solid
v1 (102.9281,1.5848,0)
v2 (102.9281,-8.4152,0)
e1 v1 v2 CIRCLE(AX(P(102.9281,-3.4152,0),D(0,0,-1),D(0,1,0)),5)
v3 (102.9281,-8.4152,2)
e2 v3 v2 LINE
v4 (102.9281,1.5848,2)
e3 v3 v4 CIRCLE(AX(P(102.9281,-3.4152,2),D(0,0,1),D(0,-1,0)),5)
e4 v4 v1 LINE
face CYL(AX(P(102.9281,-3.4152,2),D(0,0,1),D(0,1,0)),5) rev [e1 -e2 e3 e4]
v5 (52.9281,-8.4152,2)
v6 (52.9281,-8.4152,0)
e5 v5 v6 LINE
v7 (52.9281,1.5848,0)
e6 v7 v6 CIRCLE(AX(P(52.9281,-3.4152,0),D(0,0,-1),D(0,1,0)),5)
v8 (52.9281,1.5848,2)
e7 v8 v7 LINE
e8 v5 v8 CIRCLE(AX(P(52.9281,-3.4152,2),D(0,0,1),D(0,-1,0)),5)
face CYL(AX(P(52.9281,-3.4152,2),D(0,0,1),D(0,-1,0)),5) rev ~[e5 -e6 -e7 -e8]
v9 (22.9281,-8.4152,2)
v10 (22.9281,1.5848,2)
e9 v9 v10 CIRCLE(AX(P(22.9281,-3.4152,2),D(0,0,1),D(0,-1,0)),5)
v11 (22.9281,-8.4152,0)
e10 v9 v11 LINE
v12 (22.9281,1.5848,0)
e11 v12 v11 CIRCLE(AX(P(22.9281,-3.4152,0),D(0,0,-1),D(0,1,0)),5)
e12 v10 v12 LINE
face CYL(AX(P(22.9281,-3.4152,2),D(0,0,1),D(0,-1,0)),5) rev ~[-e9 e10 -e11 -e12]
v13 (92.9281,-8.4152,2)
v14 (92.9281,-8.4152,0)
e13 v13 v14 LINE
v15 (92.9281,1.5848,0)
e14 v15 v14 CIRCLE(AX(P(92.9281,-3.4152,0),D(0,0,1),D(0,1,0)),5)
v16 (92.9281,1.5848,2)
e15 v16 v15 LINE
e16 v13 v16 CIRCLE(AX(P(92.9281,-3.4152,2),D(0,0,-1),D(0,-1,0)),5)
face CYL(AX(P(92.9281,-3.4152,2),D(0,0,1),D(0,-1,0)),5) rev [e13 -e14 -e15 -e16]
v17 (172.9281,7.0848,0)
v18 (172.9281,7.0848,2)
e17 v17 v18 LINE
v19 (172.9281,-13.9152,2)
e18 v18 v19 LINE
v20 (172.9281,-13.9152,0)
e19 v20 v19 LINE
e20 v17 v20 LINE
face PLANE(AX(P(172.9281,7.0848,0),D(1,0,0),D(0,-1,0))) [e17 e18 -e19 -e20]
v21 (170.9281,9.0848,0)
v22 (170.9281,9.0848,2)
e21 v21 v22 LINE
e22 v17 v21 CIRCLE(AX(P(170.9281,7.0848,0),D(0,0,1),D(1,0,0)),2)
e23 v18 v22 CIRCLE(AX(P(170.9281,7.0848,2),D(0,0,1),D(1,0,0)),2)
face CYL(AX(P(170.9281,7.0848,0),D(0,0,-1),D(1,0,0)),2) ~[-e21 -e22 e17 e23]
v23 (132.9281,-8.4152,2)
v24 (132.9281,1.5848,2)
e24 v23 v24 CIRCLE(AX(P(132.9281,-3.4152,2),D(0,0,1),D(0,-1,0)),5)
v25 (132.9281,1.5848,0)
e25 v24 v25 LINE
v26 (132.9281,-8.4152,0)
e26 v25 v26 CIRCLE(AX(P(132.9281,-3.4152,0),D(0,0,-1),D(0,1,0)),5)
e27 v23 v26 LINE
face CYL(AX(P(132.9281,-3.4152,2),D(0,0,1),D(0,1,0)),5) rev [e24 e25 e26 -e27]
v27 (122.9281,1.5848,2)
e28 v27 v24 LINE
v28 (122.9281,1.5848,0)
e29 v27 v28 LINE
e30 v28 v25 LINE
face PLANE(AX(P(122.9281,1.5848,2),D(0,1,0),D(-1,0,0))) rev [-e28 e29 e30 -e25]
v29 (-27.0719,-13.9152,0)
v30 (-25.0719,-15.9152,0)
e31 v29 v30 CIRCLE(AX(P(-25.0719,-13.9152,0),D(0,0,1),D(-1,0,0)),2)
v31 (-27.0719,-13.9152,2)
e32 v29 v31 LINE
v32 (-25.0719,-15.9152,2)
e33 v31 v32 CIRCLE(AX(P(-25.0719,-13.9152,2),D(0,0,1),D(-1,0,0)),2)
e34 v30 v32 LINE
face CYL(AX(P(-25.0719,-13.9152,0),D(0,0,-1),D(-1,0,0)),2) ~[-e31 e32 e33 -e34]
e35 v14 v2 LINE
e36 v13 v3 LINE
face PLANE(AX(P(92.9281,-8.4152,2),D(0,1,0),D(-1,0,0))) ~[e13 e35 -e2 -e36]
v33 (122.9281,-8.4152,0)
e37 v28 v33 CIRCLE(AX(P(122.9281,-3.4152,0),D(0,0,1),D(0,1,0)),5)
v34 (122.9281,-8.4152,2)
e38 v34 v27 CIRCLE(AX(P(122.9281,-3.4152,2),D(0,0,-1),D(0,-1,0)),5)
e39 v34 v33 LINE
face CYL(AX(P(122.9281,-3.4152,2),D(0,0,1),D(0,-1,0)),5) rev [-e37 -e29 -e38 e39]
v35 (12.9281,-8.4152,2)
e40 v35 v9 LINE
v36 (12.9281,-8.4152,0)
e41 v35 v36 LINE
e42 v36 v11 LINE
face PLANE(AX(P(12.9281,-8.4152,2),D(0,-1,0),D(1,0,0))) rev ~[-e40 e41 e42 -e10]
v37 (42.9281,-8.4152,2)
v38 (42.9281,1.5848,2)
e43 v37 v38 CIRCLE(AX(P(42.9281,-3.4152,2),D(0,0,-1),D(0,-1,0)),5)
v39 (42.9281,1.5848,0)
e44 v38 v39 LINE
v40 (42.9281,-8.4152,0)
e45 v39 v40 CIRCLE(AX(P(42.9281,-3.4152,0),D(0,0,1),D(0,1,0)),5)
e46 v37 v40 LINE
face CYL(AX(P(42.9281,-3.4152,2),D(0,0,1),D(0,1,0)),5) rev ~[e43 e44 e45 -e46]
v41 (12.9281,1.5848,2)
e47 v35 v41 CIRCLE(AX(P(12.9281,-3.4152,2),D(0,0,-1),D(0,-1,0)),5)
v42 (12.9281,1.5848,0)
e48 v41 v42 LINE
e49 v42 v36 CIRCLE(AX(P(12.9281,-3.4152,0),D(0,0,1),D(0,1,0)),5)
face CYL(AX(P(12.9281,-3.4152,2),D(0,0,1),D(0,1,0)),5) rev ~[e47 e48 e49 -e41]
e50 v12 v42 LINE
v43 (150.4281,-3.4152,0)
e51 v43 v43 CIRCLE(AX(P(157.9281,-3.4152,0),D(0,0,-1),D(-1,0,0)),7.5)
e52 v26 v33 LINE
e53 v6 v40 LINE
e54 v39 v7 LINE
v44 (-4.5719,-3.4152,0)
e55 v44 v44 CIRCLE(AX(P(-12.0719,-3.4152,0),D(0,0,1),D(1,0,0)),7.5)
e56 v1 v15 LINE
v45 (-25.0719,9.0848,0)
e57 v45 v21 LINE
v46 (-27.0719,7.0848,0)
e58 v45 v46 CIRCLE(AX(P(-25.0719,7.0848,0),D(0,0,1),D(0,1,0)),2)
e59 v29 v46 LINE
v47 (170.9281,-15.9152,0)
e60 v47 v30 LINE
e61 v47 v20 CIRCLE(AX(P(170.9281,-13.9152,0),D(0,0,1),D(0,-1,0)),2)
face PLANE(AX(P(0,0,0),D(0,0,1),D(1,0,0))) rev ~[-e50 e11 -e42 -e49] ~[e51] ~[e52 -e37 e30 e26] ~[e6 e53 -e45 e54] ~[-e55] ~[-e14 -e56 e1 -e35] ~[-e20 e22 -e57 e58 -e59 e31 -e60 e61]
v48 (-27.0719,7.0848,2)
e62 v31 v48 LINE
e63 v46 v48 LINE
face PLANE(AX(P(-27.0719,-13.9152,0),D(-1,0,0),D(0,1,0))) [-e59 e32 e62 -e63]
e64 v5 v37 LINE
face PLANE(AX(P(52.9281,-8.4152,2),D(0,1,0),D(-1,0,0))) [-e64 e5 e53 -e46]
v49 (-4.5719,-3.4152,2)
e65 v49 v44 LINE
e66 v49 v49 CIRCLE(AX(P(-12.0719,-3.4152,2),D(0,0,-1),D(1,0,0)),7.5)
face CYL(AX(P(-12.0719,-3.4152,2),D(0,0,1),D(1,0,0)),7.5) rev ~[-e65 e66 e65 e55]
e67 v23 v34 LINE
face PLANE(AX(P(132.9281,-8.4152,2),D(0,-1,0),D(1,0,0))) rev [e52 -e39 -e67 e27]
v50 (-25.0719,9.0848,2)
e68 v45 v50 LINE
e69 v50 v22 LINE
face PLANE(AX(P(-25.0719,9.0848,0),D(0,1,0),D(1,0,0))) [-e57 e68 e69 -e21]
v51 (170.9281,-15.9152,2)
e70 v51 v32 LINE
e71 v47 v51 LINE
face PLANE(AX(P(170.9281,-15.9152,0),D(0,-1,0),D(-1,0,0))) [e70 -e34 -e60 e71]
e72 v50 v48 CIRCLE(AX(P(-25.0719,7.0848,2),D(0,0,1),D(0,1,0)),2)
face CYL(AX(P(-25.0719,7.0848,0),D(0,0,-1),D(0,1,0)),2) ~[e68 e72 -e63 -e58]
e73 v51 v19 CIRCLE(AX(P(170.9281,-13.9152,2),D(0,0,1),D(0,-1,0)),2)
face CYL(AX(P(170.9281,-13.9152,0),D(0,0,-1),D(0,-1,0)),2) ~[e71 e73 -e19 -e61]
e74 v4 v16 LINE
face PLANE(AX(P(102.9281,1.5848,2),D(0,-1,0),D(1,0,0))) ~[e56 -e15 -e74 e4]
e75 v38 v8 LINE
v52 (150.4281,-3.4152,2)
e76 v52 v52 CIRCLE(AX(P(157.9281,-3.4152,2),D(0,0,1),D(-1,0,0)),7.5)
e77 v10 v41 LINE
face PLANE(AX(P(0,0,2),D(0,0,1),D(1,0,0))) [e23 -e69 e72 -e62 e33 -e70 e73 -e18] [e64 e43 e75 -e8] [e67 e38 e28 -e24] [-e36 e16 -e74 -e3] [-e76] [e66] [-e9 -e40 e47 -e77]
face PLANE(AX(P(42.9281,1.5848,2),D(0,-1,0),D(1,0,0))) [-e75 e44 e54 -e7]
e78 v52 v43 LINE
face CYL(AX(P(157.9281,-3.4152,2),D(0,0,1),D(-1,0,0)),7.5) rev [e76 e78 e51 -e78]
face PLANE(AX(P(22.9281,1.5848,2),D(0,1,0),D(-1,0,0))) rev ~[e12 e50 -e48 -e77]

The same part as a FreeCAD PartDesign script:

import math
import FreeCAD as App
import Part
import Sketcher

V = App.Vector

doc = App.newDocument("Part")
params = doc.addObject("Spreadsheet::Sheet", "Params")
for row, (alias, value) in enumerate([
    ("sketch1_radius", "2 mm"),
    ("sketch1_width", "196 mm"),
    ("pad1_length", "2 mm"),
    ("sketch2_diameter", "15 mm"),
    ("sketch2_radius", "5 mm"),
    ("sketch2_width", "10 mm"),
    ("pocket1_length", "2 mm"),
], start=1):
    params.set(f"A{row}", alias)
    params.set(f"B{row}", "=" + value)
    params.setAlias(f"B{row}", alias)

body = doc.addObject("PartDesign::Body", "Body")

# Sketch on XY plane
sketch1 = body.newObject("Sketcher::SketchObject", "Sketch")
sketch1.AttachmentSupport = (doc.getObject("XY_Plane"), [""])
sketch1.MapMode = "FlatFace"
sketch1.addGeometry(Part.LineSegment(V(170.9, 9.1, 0), V(-25.1, 9.1, 0)), False)
sketch1.addGeometry(Part.ArcOfCircle(Part.Circle(V(-25.1, 7.1, 0), V(0, 0, 1), 2), math.radians(90), math.radians(180)), False)
sketch1.addGeometry(Part.LineSegment(V(-27.1, 7.1, 0), V(-27.1, -13.9, 0)), False)
sketch1.addGeometry(Part.ArcOfCircle(Part.Circle(V(-25.1, -13.9, 0), V(0, 0, 1), 2), math.radians(180), math.radians(270)), False)
sketch1.addGeometry(Part.LineSegment(V(-25.1, -15.9, 0), V(170.9, -15.9, 0)), False)
sketch1.addGeometry(Part.ArcOfCircle(Part.Circle(V(170.9, -13.9, 0), V(0, 0, 1), 2), math.radians(-90), math.radians(0)), False)
sketch1.addGeometry(Part.LineSegment(V(172.9, -13.9, 0), V(172.9, 7.1, 0)), False)
sketch1.addGeometry(Part.ArcOfCircle(Part.Circle(V(170.9, 7.1, 0), V(0, 0, 1), 2), math.radians(0), math.radians(90)), False)
sketch1.addConstraint(Sketcher.Constraint("Tangent", 0, 2, 1, 1))
sketch1.addConstraint(Sketcher.Constraint("Tangent", 1, 2, 2, 1))
sketch1.addConstraint(Sketcher.Constraint("Tangent", 2, 2, 3, 1))
sketch1.addConstraint(Sketcher.Constraint("Tangent", 3, 2, 4, 1))
sketch1.addConstraint(Sketcher.Constraint("Tangent", 4, 2, 5, 1))
sketch1.addConstraint(Sketcher.Constraint("Tangent", 5, 2, 6, 1))
sketch1.addConstraint(Sketcher.Constraint("Tangent", 6, 2, 7, 1))
sketch1.addConstraint(Sketcher.Constraint("Tangent", 7, 2, 0, 1))
sketch1.addConstraint(Sketcher.Constraint("Horizontal", 0))
sketch1.addConstraint(Sketcher.Constraint("Vertical", 2))
sketch1.addConstraint(Sketcher.Constraint("Horizontal", 4))
sketch1.addConstraint(Sketcher.Constraint("Vertical", 6))
sketch1.addConstraint(Sketcher.Constraint("Equal", 1, 3))
sketch1.addConstraint(Sketcher.Constraint("Equal", 3, 5))
sketch1.addConstraint(Sketcher.Constraint("Equal", 5, 7))
sketch1.addConstraint(Sketcher.Constraint("Radius", 1, 2.0))
sketch1.addConstraint(Sketcher.Constraint("DistanceY", 3, 2, 0, 2, 25.0))
sketch1.addConstraint(Sketcher.Constraint("DistanceX", 0, 2, 0, 1, 196.0))
sketch1.addConstraint(Sketcher.Constraint("DistanceX", 1, 3, -1, 1, 25.072))
sketch1.addConstraint(Sketcher.Constraint("DistanceY", -1, 1, 1, 3, 7.0848))
sketch1.setExpression("Constraints[15]", "Params.sketch1_radius")
sketch1.setExpression("Constraints[17]", "Params.sketch1_width")
pad1 = body.newObject("PartDesign::Pad", "Pad")
pad1.Profile = sketch1
pad1.setExpression("Length", "Params.pad1_length")

# Sketch on XY plane
sketch2 = body.newObject("Sketcher::SketchObject", "Sketch001")
sketch2.AttachmentSupport = (doc.getObject("XY_Plane"), [""])
sketch2.MapMode = "FlatFace"
sketch2.AttachmentOffset = App.Placement(V(0, 0, 2), App.Rotation())
sketch2.addGeometry(Part.Circle(V(-12, -3, 0), V(0, 0, 1), 8), False)
sketch2.addGeometry(Part.ArcOfCircle(Part.Circle(V(43, -3, 0), V(0, 0, 1), 5), math.radians(90), math.radians(270)), False)
sketch2.addGeometry(Part.LineSegment(V(43, -8, 0), V(53, -8, 0)), False)
sketch2.addGeometry(Part.ArcOfCircle(Part.Circle(V(53, -3, 0), V(0, 0, 1), 5), math.radians(-90), math.radians(90)), False)
sketch2.addGeometry(Part.LineSegment(V(53, 2, 0), V(43, 2, 0)), False)
sketch2.addGeometry(Part.ArcOfCircle(Part.Circle(V(13, -3, 0), V(0, 0, 1), 5), math.radians(90), math.radians(270)), False)
sketch2.addGeometry(Part.LineSegment(V(13, -8, 0), V(23, -8, 0)), False)
sketch2.addGeometry(Part.ArcOfCircle(Part.Circle(V(23, -3, 0), V(0, 0, 1), 5), math.radians(-90), math.radians(90)), False)
sketch2.addGeometry(Part.LineSegment(V(23, 2, 0), V(13, 2, 0)), False)
sketch2.addConstraint(Sketcher.Constraint("Tangent", 1, 2, 2, 1))
sketch2.addConstraint(Sketcher.Constraint("Tangent", 2, 2, 3, 1))
sketch2.addConstraint(Sketcher.Constraint("Tangent", 3, 2, 4, 1))
sketch2.addConstraint(Sketcher.Constraint("Tangent", 4, 2, 1, 1))
sketch2.addConstraint(Sketcher.Constraint("Tangent", 5, 2, 6, 1))
sketch2.addConstraint(Sketcher.Constraint("Tangent", 6, 2, 7, 1))
sketch2.addConstraint(Sketcher.Constraint("Tangent", 7, 2, 8, 1))
sketch2.addConstraint(Sketcher.Constraint("Tangent", 8, 2, 5, 1))
sketch2.addConstraint(Sketcher.Constraint("Horizontal", 2))
sketch2.addConstraint(Sketcher.Constraint("Horizontal", 4))
sketch2.addConstraint(Sketcher.Constraint("Horizontal", 6))
sketch2.addConstraint(Sketcher.Constraint("Horizontal", 8))
sketch2.addConstraint(Sketcher.Constraint("Equal", 3, 5))
sketch2.addConstraint(Sketcher.Constraint("Horizontal", 0, 3, 1, 3))
sketch2.addConstraint(Sketcher.Constraint("Horizontal", 3, 3, 5, 3))
sketch2.addConstraint(Sketcher.Constraint("Equal", 4, 6))
sketch2.addConstraint(Sketcher.Constraint("Diameter", 0, 15.0))
sketch2.addConstraint(Sketcher.Constraint("Radius", 1, 5.0))
sketch2.addConstraint(Sketcher.Constraint("DistanceX", 2, 1, 2, 2, 10.0))
sketch2.addConstraint(Sketcher.Constraint("DistanceX", 0, 3, 5, 3, 25.0))
sketch2.addConstraint(Sketcher.Constraint("DistanceX", 5, 3, 1, 3, 30.0))
sketch2.addConstraint(Sketcher.Constraint("DistanceX", 0, 3, -1, 1, 12.072))
sketch2.addConstraint(Sketcher.Constraint("DistanceY", 0, 3, -1, 1, 3.4152))
sketch2.setExpression("Constraints[16]", "Params.sketch2_diameter")
sketch2.setExpression("Constraints[17]", "Params.sketch2_radius")
sketch2.setExpression("Constraints[18]", "Params.sketch2_width")
pocket1 = body.newObject("PartDesign::Pocket", "Pocket")
pocket1.Profile = sketch2
pocket1.setExpression("Length", "Params.pocket1_length")
doc.recompute()

datumplane = body.newObject("PartDesign::Plane", "DatumPlane")
datumplane.AttachmentSupport = (doc.getObject("YZ_Plane"), [""])
datumplane.MapMode = "FlatFace"
datumplane.AttachmentOffset = App.Placement(V(0, 0, 72.9281), App.Rotation())
mirrored = body.newObject("PartDesign::Mirrored", "Mirrored")
mirrored.Originals = [pocket1]
mirrored.MirrorPlane = (datumplane, [""])
body.Tip = mirrored

doc.recompute()
